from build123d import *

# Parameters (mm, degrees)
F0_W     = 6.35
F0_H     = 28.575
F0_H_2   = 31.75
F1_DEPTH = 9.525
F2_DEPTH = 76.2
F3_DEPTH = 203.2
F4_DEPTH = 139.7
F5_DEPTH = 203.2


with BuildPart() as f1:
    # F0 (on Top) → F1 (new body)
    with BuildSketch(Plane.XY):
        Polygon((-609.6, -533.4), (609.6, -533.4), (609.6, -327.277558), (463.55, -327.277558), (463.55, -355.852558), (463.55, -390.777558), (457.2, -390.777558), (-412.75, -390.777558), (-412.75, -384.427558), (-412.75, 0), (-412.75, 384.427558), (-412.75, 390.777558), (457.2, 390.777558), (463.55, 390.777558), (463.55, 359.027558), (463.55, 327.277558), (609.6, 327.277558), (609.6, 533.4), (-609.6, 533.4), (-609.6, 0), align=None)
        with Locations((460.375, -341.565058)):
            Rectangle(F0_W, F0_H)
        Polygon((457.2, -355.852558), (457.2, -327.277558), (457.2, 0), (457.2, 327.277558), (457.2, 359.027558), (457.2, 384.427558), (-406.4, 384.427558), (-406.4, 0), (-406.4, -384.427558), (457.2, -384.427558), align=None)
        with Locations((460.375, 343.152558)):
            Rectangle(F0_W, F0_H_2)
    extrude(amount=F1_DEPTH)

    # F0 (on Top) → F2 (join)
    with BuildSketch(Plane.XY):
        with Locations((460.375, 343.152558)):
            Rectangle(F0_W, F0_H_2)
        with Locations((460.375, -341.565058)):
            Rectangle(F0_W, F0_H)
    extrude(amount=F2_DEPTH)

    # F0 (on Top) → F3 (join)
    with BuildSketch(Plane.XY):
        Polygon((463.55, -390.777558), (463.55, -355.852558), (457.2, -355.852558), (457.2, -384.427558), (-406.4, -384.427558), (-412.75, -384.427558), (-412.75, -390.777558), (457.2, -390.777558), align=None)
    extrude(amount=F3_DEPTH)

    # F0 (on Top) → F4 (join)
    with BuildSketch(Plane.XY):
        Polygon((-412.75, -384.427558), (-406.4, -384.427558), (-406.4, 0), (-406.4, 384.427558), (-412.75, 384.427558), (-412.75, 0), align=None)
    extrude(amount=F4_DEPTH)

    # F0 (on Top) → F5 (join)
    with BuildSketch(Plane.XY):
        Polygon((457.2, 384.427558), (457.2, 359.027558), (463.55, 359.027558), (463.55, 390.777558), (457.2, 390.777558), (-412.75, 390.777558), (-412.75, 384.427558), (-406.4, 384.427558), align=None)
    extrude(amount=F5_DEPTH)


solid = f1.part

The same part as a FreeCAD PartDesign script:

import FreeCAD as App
import Part
import Sketcher
Q = App.Units.Quantity


def add_polygon(sketch, points):
    """Adds a closed chain of lines whose ends are joined by coincident constraints."""
    first, n = sketch.GeometryCount, len(points)
    for a, b in zip(points, points[1:] + points[:1]):
        sketch.addGeometry(Part.LineSegment(App.Vector(*a, 0), App.Vector(*b, 0)), False)
    for i in range(n):
        sketch.addConstraint(Sketcher.Constraint("Coincident", first + i, 2, first + (i + 1) % n, 1))

doc = App.newDocument("Part")
body = doc.addObject("PartDesign::Body", "Body")

sketch1 = body.newObject("Sketcher::SketchObject", "Sketch")
sketch1.AttachmentSupport = (doc.getObject("XY_Plane"), [""])
sketch1.MapMode = "FlatFace"
add_polygon(sketch1, [(-609.6, -533.4), (609.6, -533.4), (609.6, -327.277558), (457.2, -327.277558), (457.2, 327.277558), (609.6, 327.277558), (609.6, 533.4), (-609.6, 533.4)])
add_polygon(sketch1, [(457.2, 359.027558), (457.2, 384.427558), (-406.4, 384.427558), (-406.4, -384.427558), (457.2, -384.427558), (457.2, -355.852558), (463.55, -355.852558), (463.55, -390.777558), (-412.75, -390.777558), (-412.75, 390.777558), (463.55, 390.777558), (463.55, 359.027558)])
sketch1.addConstraint(Sketcher.Constraint("Horizontal", 0))
sketch1.addConstraint(Sketcher.Constraint("Vertical", 1))
sketch1.addConstraint(Sketcher.Constraint("Horizontal", 2))
sketch1.addConstraint(Sketcher.Constraint("Vertical", 3))
sketch1.addConstraint(Sketcher.Constraint("Horizontal", 4))
sketch1.addConstraint(Sketcher.Constraint("Vertical", 5))
sketch1.addConstraint(Sketcher.Constraint("Horizontal", 6))
sketch1.addConstraint(Sketcher.Constraint("Vertical", 7))
sketch1.addConstraint(Sketcher.Constraint("Vertical", 8))
sketch1.addConstraint(Sketcher.Constraint("Horizontal", 9))
sketch1.addConstraint(Sketcher.Constraint("Vertical", 10))
sketch1.addConstraint(Sketcher.Constraint("Horizontal", 11))
sketch1.addConstraint(Sketcher.Constraint("Vertical", 12))
sketch1.addConstraint(Sketcher.Constraint("Horizontal", 13))
sketch1.addConstraint(Sketcher.Constraint("Vertical", 14))
sketch1.addConstraint(Sketcher.Constraint("Horizontal", 15))
sketch1.addConstraint(Sketcher.Constraint("Vertical", 16))
sketch1.addConstraint(Sketcher.Constraint("Horizontal", 17))
sketch1.addConstraint(Sketcher.Constraint("Vertical", 18))
sketch1.addConstraint(Sketcher.Constraint("Horizontal", 19))
sketch1.addConstraint(Sketcher.Constraint("Symmetric", 0, 2, 6, 2, -1, 1))
sketch1.addConstraint(Sketcher.Constraint("Symmetric", 1, 2, 4, 2, -1))
sketch1.addConstraint(Sketcher.Constraint("Symmetric", 8, 2, 11, 2, -1))
sketch1.addConstraint(Sketcher.Constraint("Symmetric", 14, 2, 17, 2, -1))
sketch1.addConstraint(Sketcher.Constraint("Vertical", 3, 2, 8, 2))
sketch1.addConstraint(Sketcher.Constraint("DistanceX", 0, 1, 0, 2, Q("48 in")))
sketch1.addConstraint(Sketcher.Constraint("DistanceX", 2, 2, 2, 1, Q("6 in")))
sketch1.addConstraint(Sketcher.Constraint("DistanceX", 9, 2, 9, 1, Q("34 in")))
sketch1.addConstraint(Sketcher.Constraint("DistanceY", 7, 2, 7, 1, Q("42 in")))
sketch1.addConstraint(Sketcher.Constraint("DistanceY", 8, 1, 8, 2, Q("1 in")))
sketch1.addConstraint(Sketcher.Constraint("DistanceX", 15, 2, 15, 1, Q("34.5 in")))
sketch1.addConstraint(Sketcher.Constraint("DistanceX", 13, 1, 13, 2, Q("0.25 in")))
sketch1.addConstraint(Sketcher.Constraint("DistanceY", 18, 2, 18, 1, Q("1.25 in")))
sketch1.addConstraint(Sketcher.Constraint("DistanceY", 14, 2, 2, 2, Q("2.5 in")))
sketch1.addConstraint(Sketcher.Constraint("DistanceY", 12, 1, 12, 2, Q("1.125 in")))
sketch1.addConstraint(Sketcher.Constraint("DistanceY", 1, 1, 1, 2, Q("206.122442 mm")))
pad1 = body.newObject("PartDesign::Pad", "Pad")
pad1.Profile = sketch1
pad1.Length = Q("0.375 in")

sketch2 = body.newObject("Sketcher::SketchObject", "Sketch001")
sketch2.AttachmentSupport = (doc.getObject("XY_Plane"), [""])
sketch2.MapMode = "FlatFace"
add_polygon(sketch2, [(457.2, 359.027558), (457.2, 327.277558), (463.55, 327.277558), (463.55, 359.027558)])
add_polygon(sketch2, [(457.2, -327.277558), (457.2, -355.852558), (463.55, -355.852558), (463.55, -327.277558)])
sketch2.addConstraint(Sketcher.Constraint("Vertical", 0))
sketch2.addConstraint(Sketcher.Constraint("Horizontal", 1))
sketch2.addConstraint(Sketcher.Constraint("Vertical", 2))
sketch2.addConstraint(Sketcher.Constraint("Horizontal", 3))
sketch2.addConstraint(Sketcher.Constraint("Vertical", 4))
sketch2.addConstraint(Sketcher.Constraint("Horizontal", 5))
sketch2.addConstraint(Sketcher.Constraint("Vertical", 6))
sketch2.addConstraint(Sketcher.Constraint("Horizontal", 7))
sketch2.addConstraint(Sketcher.Constraint("Symmetric", 1, 2, 6, 2, -1))
sketch2.addConstraint(Sketcher.Constraint("Vertical", 3, 2, 4, 2))
sketch2.addConstraint(Sketcher.Constraint("DistanceX", -1, 1, 0, 2, Q("18 in")))
sketch2.addConstraint(Sketcher.Constraint("DistanceX", 1, 1, 1, 2, Q("0.25 in")))
sketch2.addConstraint(Sketcher.Constraint("DistanceY", 0, 2, 0, 1, Q("1.25 in")))
sketch2.addConstraint(Sketcher.Constraint("DistanceY", 4, 2, 4, 1, Q("1.125 in")))
sketch2.addConstraint(Sketcher.Constraint("DistanceY", -1, 1, 0, 2, Q("327.277558 mm")))
pad2 = body.newObject("PartDesign::Pad", "Pad001")
pad2.Profile = sketch2
pad2.Length = Q("3 in")

sketch3 = body.newObject("Sketcher::SketchObject", "Sketch002")
sketch3.AttachmentSupport = (doc.getObject("XY_Plane"), [""])
sketch3.MapMode = "FlatFace"
add_polygon(sketch3, [(463.55, -390.777558), (463.55, -355.852558), (457.2, -355.852558), (457.2, -384.427558), (-412.75, -384.427558), (-412.75, -390.777558)])
sketch3.addConstraint(Sketcher.Constraint("Vertical", 0))
sketch3.addConstraint(Sketcher.Constraint("Horizontal", 1))
sketch3.addConstraint(Sketcher.Constraint("Vertical", 2))
sketch3.addConstraint(Sketcher.Constraint("Horizontal", 3))
sketch3.addConstraint(Sketcher.Constraint("Vertical", 4))
sketch3.addConstraint(Sketcher.Constraint("Horizontal", 5))
sketch3.addConstraint(Sketcher.Constraint("Equal", 1, 4))
sketch3.addConstraint(Sketcher.Constraint("DistanceX", 5, 1, 5, 2, Q("34.5 in")))
sketch3.addConstraint(Sketcher.Constraint("DistanceX", -1, 1, 1, 2, Q("18 in")))
sketch3.addConstraint(Sketcher.Constraint("DistanceX", 1, 2, 1, 1, Q("0.25 in")))
sketch3.addConstraint(Sketcher.Constraint("DistanceY", 0, 1, 0, 2, Q("1.375 in")))
sketch3.addConstraint(Sketcher.Constraint("DistanceY", 0, 2, -1, 1, Q("355.852558 mm")))
pad3 = body.newObject("PartDesign::Pad", "Pad002")
pad3.Profile = sketch3
pad3.Length = Q("8 in")

sketch4 = body.newObject("Sketcher::SketchObject", "Sketch003")
sketch4.AttachmentSupport = (doc.getObject("XY_Plane"), [""])
sketch4.MapMode = "FlatFace"
add_polygon(sketch4, [(-412.75, -384.427558), (-406.4, -384.427558), (-406.4, 384.427558), (-412.75, 384.427558)])
sketch4.addConstraint(Sketcher.Constraint("Horizontal", 0))
sketch4.addConstraint(Sketcher.Constraint("Vertical", 1))
sketch4.addConstraint(Sketcher.Constraint("Horizontal", 2))
sketch4.addConstraint(Sketcher.Constraint("Vertical", 3))
sketch4.addConstraint(Sketcher.Constraint("DistanceX", 0, 2, -1, 1, Q("16 in")))
sketch4.addConstraint(Sketcher.Constraint("DistanceX", 0, 1, 0, 2, Q("0.25 in")))
sketch4.addConstraint(Sketcher.Constraint("DistanceY", 1, 1, 1, 2, Q("768.855116 mm")))
sketch4.addConstraint(Sketcher.Constraint("DistanceY", 0, 2, -1, 1, Q("384.427558 mm")))
pad4 = body.newObject("PartDesign::Pad", "Pad003")
pad4.Profile = sketch4
pad4.Length = Q("5.5 in")

sketch5 = body.newObject("Sketcher::SketchObject", "Sketch004")
sketch5.AttachmentSupport = (doc.getObject("XY_Plane"), [""])
sketch5.MapMode = "FlatFace"
add_polygon(sketch5, [(457.2, 384.427558), (457.2, 359.027558), (463.55, 359.027558), (463.55, 390.777558), (-412.75, 390.777558), (-412.75, 384.427558)])
sketch5.addConstraint(Sketcher.Constraint("Vertical", 0))
sketch5.addConstraint(Sketcher.Constraint("Horizontal", 1))
sketch5.addConstraint(Sketcher.Constraint("Vertical", 2))
sketch5.addConstraint(Sketcher.Constraint("Horizontal", 3))
sketch5.addConstraint(Sketcher.Constraint("Vertical", 4))
sketch5.addConstraint(Sketcher.Constraint("Horizontal", 5))
sketch5.addConstraint(Sketcher.Constraint("Equal", 1, 4))
sketch5.addConstraint(Sketcher.Constraint("DistanceY", 0, 2, 0, 1, Q("1 in")))
sketch5.addConstraint(Sketcher.Constraint("DistanceX", 3, 2, 3, 1, Q("34.5 in")))
sketch5.addConstraint(Sketcher.Constraint("DistanceX", -1, 1, 0, 2, Q("18 in")))
sketch5.addConstraint(Sketcher.Constraint("DistanceX", 1, 1, 1, 2, Q("0.25 in")))
sketch5.addConstraint(Sketcher.Constraint("DistanceY", -1, 1, 0, 2, Q("359.027558 mm")))
pad5 = body.newObject("PartDesign::Pad", "Pad004")
pad5.Profile = sketch5
pad5.Length = Q("8 in")

doc.recompute()
